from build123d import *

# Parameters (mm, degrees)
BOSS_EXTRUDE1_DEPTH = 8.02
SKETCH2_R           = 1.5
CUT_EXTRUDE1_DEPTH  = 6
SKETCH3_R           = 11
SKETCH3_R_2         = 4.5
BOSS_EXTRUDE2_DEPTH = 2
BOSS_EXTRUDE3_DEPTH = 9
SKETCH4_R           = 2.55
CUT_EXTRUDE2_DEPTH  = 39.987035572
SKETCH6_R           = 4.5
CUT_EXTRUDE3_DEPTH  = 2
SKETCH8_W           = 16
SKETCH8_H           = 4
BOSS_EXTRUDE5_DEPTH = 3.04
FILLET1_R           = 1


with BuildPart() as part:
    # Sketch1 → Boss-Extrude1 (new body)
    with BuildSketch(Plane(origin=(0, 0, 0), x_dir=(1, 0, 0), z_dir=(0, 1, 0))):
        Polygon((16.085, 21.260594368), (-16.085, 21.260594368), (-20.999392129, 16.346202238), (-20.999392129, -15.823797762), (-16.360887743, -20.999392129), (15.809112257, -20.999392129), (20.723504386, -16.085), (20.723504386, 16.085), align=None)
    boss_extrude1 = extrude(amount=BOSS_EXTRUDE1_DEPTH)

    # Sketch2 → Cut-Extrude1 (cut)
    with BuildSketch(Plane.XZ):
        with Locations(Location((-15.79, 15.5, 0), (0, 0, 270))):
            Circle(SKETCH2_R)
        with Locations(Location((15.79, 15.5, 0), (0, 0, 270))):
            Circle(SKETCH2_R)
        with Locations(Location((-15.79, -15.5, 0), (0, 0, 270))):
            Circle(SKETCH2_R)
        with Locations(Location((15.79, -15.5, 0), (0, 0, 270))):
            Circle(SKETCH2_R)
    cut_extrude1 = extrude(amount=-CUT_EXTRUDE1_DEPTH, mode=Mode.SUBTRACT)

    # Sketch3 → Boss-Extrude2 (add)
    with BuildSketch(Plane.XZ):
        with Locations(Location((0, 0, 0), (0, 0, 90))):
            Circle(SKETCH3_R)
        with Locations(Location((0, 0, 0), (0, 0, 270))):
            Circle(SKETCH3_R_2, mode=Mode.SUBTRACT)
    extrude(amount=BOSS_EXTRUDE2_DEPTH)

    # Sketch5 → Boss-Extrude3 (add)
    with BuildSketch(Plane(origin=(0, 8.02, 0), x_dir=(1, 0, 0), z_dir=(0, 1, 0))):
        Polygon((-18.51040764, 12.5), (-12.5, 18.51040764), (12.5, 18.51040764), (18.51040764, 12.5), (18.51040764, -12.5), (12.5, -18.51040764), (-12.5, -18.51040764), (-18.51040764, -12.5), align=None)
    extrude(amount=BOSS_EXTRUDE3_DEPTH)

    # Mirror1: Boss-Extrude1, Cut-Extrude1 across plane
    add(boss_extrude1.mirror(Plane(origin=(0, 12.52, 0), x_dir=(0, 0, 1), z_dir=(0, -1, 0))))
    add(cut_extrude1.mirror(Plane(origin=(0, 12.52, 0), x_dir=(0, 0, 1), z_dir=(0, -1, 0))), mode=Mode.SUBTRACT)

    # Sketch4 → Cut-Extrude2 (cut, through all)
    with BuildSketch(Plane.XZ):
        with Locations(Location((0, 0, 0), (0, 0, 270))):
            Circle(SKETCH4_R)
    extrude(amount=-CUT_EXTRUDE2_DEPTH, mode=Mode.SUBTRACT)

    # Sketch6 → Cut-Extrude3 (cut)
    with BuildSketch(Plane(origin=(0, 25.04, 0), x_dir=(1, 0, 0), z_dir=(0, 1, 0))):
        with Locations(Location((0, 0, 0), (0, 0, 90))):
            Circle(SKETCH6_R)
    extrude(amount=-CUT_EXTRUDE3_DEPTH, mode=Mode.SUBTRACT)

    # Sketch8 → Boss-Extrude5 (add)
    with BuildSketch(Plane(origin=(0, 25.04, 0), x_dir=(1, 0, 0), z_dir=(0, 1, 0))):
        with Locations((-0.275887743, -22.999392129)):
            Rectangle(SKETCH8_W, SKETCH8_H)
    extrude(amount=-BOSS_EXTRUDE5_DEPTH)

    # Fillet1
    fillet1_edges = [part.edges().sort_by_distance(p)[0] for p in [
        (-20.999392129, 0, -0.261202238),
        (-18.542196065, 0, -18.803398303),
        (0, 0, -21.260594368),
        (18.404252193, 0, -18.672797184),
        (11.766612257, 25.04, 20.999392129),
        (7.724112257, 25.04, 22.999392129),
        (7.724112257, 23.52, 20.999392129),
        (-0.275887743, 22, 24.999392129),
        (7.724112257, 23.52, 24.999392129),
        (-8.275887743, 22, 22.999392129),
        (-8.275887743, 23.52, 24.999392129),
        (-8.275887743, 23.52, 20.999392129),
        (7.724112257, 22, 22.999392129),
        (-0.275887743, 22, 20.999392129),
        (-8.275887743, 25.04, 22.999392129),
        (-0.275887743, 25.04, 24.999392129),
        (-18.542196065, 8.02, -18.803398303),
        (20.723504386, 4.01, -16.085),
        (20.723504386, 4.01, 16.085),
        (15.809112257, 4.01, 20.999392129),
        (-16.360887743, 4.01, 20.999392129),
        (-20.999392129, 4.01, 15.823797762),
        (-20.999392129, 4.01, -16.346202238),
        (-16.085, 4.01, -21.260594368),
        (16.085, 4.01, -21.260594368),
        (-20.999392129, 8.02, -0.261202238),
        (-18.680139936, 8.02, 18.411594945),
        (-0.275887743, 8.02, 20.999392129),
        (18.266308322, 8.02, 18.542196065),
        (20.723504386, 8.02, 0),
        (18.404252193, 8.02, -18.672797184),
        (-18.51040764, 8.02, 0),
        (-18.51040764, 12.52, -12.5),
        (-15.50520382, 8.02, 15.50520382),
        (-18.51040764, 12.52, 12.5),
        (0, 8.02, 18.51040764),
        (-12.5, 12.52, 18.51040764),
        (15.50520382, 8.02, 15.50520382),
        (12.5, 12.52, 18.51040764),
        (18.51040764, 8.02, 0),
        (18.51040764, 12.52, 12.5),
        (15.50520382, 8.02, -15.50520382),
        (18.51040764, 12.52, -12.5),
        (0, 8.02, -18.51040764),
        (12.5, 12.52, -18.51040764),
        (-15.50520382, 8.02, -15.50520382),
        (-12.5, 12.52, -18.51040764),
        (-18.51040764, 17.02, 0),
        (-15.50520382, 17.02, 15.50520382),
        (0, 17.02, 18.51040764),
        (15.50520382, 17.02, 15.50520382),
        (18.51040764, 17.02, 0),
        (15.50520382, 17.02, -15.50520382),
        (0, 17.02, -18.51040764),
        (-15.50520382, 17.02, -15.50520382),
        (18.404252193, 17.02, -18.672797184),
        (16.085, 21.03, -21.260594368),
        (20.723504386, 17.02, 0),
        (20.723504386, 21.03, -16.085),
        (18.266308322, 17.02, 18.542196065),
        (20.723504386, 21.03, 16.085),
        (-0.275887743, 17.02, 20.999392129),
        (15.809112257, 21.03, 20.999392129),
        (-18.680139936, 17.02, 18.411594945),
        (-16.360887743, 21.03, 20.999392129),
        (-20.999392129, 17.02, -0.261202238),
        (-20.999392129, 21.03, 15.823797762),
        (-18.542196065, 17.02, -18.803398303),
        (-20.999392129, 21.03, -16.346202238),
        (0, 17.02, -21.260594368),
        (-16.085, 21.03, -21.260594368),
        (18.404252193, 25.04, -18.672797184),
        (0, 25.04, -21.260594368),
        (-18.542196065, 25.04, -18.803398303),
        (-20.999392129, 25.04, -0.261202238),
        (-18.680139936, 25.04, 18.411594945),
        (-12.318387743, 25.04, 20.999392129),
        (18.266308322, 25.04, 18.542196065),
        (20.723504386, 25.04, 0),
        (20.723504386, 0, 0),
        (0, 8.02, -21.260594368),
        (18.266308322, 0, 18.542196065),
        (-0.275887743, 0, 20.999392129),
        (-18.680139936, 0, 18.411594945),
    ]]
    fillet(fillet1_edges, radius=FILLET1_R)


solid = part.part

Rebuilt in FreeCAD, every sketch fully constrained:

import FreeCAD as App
import Part
import Sketcher
Q = App.Units.Quantity


def edges_at(feature, points):
    """Names of the edges that pass closest to the given points."""
    edges = feature.Shape.Edges
    near = lambda p: min(range(len(edges)), key=lambda i: edges[i].distToShape(Part.Vertex(*p))[0])
    return sorted({f"Edge{near(p) + 1}" for p in points})

doc = App.newDocument("Part")
params = doc.addObject("Spreadsheet::Sheet", "Params")
for row, (alias, value) in enumerate([
    ("sketch1_width", "32.17 mm"),
    ("sketch1_length", "6.95 mm"),
    ("pad1_length", "8.02 mm"),
    ("sketch2_diameter", "3 mm"),
    ("pocket1_length", "6 mm"),
    ("sketch3_diameter", "22 mm"),
    ("sketch3_diameter2", "9 mm"),
    ("pad2_length", "2 mm"),
    ("sketch4_width", "25 mm"),
    ("sketch4_length", "8.5 mm"),
    ("pad3_length", "9 mm"),
    ("sketch5_diameter", "5.1 mm"),
    ("sketch6_diameter", "9 mm"),
    ("pocket3_length", "2 mm"),
    ("sketch7_width", "16 mm"),
    ("sketch7_height", "4 mm"),
    ("pad4_length", "3.04 mm"),
    ("fillet_radius", "1 mm"),
], start=1):
    params.set(f"A{row}", alias)
    params.set(f"B{row}", "=" + value)
    params.setAlias(f"B{row}", alias)

body = doc.addObject("PartDesign::Body", "Body")

# Sketch on XZ plane
sketch1 = body.newObject("Sketcher::SketchObject", "Sketch")
sketch1.AttachmentSupport = (doc.getObject("XZ_Plane"), [""])
sketch1.MapMode = "FlatFace"
sketch1.addGeometry(Part.LineSegment(App.Vector(16.085, -21.260594, 0), App.Vector(-16.085, -21.260594, 0)), False)
sketch1.addGeometry(Part.LineSegment(App.Vector(-16.085, -21.260594, 0), App.Vector(-20.999392, -16.346202, 0)), False)
sketch1.addGeometry(Part.LineSegment(App.Vector(-20.999392, -16.346202, 0), App.Vector(-20.999392, 15.823798, 0)), False)
sketch1.addGeometry(Part.LineSegment(App.Vector(-20.999392, 15.823798, 0), App.Vector(-16.360888, 20.999392, 0)), False)
sketch1.addGeometry(Part.LineSegment(App.Vector(-16.360888, 20.999392, 0), App.Vector(15.809112, 20.999392, 0)), False)
sketch1.addGeometry(Part.LineSegment(App.Vector(15.809112, 20.999392, 0), App.Vector(20.723504, 16.085, 0)), False)
sketch1.addGeometry(Part.LineSegment(App.Vector(20.723504, 16.085, 0), App.Vector(20.723504, -16.085, 0)), False)
sketch1.addGeometry(Part.LineSegment(App.Vector(20.723504, -16.085, 0), App.Vector(16.085, -21.260594, 0)), False)
sketch1.addConstraint(Sketcher.Constraint("Coincident", 0, 2, 1, 1))
sketch1.addConstraint(Sketcher.Constraint("Coincident", 1, 2, 2, 1))
sketch1.addConstraint(Sketcher.Constraint("Coincident", 2, 2, 3, 1))
sketch1.addConstraint(Sketcher.Constraint("Coincident", 3, 2, 4, 1))
sketch1.addConstraint(Sketcher.Constraint("Coincident", 4, 2, 5, 1))
sketch1.addConstraint(Sketcher.Constraint("Coincident", 5, 2, 6, 1))
sketch1.addConstraint(Sketcher.Constraint("Coincident", 6, 2, 7, 1))
sketch1.addConstraint(Sketcher.Constraint("Coincident", 7, 2, 0, 1))
sketch1.addConstraint(Sketcher.Constraint("Horizontal", 0))
sketch1.addConstraint(Sketcher.Constraint("Vertical", 2))
sketch1.addConstraint(Sketcher.Constraint("Horizontal", 4))
sketch1.addConstraint(Sketcher.Constraint("Vertical", 6))
sketch1.addConstraint(Sketcher.Constraint("Parallel", 1, 5))
sketch1.addConstraint(Sketcher.Constraint("Parallel", 3, 7))
sketch1.addConstraint(Sketcher.Constraint("Equal", 0, 4))
sketch1.addConstraint(Sketcher.Constraint("Equal", 4, 2))
sketch1.addConstraint(Sketcher.Constraint("Equal", 2, 6))
sketch1.addConstraint(Sketcher.Constraint("Equal", 1, 3))
sketch1.addConstraint(Sketcher.Constraint("Angle", 1, Q("135 deg")))
sketch1.addConstraint(Sketcher.Constraint("DistanceX", 0, 2, 0, 1, Q("32.17 mm")))
sketch1.addConstraint(Sketcher.Constraint("Distance", 1, Q("6.95 mm")))
sketch1.addConstraint(Sketcher.Constraint("DistanceX", 0, 2, -1, 1, Q("16.085 mm")))
sketch1.addConstraint(Sketcher.Constraint("DistanceY", -1, 1, 5, 2, Q("16.085 mm")))
sketch1.addConstraint(Sketcher.Constraint("DistanceY", 0, 2, -1, 1, Q("21.260594 mm")))
sketch1.setExpression("Constraints[19]", "Params.sketch1_width")
sketch1.setExpression("Constraints[20]", "Params.sketch1_length")
pad1 = body.newObject("PartDesign::Pad", "Pad")
pad1.Profile = sketch1
pad1.setExpression("Length", "Params.pad1_length")
pad1.Reversed = True

# Sketch on XZ plane
sketch2 = body.newObject("Sketcher::SketchObject", "Sketch001")
sketch2.AttachmentSupport = (doc.getObject("XZ_Plane"), [""])
sketch2.MapMode = "FlatFace"
sketch2.addGeometry(Part.Circle(App.Vector(-15.79, 15.5, 0), App.Vector(0, 0, 1), 1.5), False)
sketch2.addGeometry(Part.Circle(App.Vector(15.79, 15.5, 0), App.Vector(0, 0, 1), 1.5), False)
sketch2.addGeometry(Part.Circle(App.Vector(-15.79, -15.5, 0), App.Vector(0, 0, 1), 1.5), False)
sketch2.addGeometry(Part.Circle(App.Vector(15.79, -15.5, 0), App.Vector(0, 0, 1), 1.5), False)
sketch2.addConstraint(Sketcher.Constraint("Equal", 0, 1))
sketch2.addConstraint(Sketcher.Constraint("Equal", 1, 2))
sketch2.addConstraint(Sketcher.Constraint("Equal", 2, 3))
sketch2.addConstraint(Sketcher.Constraint("Symmetric", 1, 3, 2, 3, -1, 1))
sketch2.addConstraint(Sketcher.Constraint("Symmetric", 0, 3, 3, 3, -1, 1))
sketch2.addConstraint(Sketcher.Constraint("Symmetric", 0, 3, 1, 3, -2))
sketch2.addConstraint(Sketcher.Constraint("Diameter", 0, Q("3 mm")))
sketch2.addConstraint(Sketcher.Constraint("DistanceY", 2, 3, 0, 3, Q("31 mm")))
sketch2.addConstraint(Sketcher.Constraint("DistanceX", 0, 3, -1, 1, Q("15.79 mm")))
sketch2.setExpression("Constraints[6]", "Params.sketch2_diameter")
pocket1 = body.newObject("PartDesign::Pocket", "Pocket")
pocket1.Profile = sketch2
pocket1.setExpression("Length", "Params.pocket1_length")

# Sketch on XZ plane
sketch3 = body.newObject("Sketcher::SketchObject", "Sketch002")
sketch3.AttachmentSupport = (doc.getObject("XZ_Plane"), [""])
sketch3.MapMode = "FlatFace"
sketch3.addGeometry(Part.Circle(App.Vector(0, 0, 0), App.Vector(0, 0, 1), 11), False)
sketch3.addGeometry(Part.Circle(App.Vector(0, 0, 0), App.Vector(0, 0, 1), 4.5), False)
sketch3.addConstraint(Sketcher.Constraint("Coincident", 0, 3, -1, 1))
sketch3.addConstraint(Sketcher.Constraint("Coincident", 1, 3, -1, 1))
sketch3.addConstraint(Sketcher.Constraint("Diameter", 0, Q("22 mm")))
sketch3.addConstraint(Sketcher.Constraint("Diameter", 1, Q("9 mm")))
sketch3.setExpression("Constraints[2]", "Params.sketch3_diameter")
sketch3.setExpression("Constraints[3]", "Params.sketch3_diameter2")
pad2 = body.newObject("PartDesign::Pad", "Pad001")
pad2.Profile = sketch3
pad2.setExpression("Length", "Params.pad2_length")

# Sketch on XZ plane
sketch4 = body.newObject("Sketcher::SketchObject", "Sketch003")
sketch4.AttachmentSupport = (doc.getObject("XZ_Plane"), [""])
sketch4.MapMode = "FlatFace"
sketch4.AttachmentOffset = App.Placement(App.Vector(0, 0, -8.02), App.Rotation())
sketch4.addGeometry(Part.LineSegment(App.Vector(-12.5, -18.510408, 0), App.Vector(-18.510408, -12.5, 0)), False)
sketch4.addGeometry(Part.LineSegment(App.Vector(-18.510408, -12.5, 0), App.Vector(-18.510408, 12.5, 0)), False)
sketch4.addGeometry(Part.LineSegment(App.Vector(-18.510408, 12.5, 0), App.Vector(-12.5, 18.510408, 0)), False)
sketch4.addGeometry(Part.LineSegment(App.Vector(-12.5, 18.510408, 0), App.Vector(12.5, 18.510408, 0)), False)
sketch4.addGeometry(Part.LineSegment(App.Vector(12.5, 18.510408, 0), App.Vector(18.510408, 12.5, 0)), False)
sketch4.addGeometry(Part.LineSegment(App.Vector(18.510408, 12.5, 0), App.Vector(18.510408, -12.5, 0)), False)
sketch4.addGeometry(Part.LineSegment(App.Vector(18.510408, -12.5, 0), App.Vector(12.5, -18.510408, 0)), False)
sketch4.addGeometry(Part.LineSegment(App.Vector(12.5, -18.510408, 0), App.Vector(-12.5, -18.510408, 0)), False)
sketch4.addConstraint(Sketcher.Constraint("Coincident", 0, 2, 1, 1))
sketch4.addConstraint(Sketcher.Constraint("Coincident", 1, 2, 2, 1))
sketch4.addConstraint(Sketcher.Constraint("Coincident", 2, 2, 3, 1))
sketch4.addConstraint(Sketcher.Constraint("Coincident", 3, 2, 4, 1))
sketch4.addConstraint(Sketcher.Constraint("Coincident", 4, 2, 5, 1))
sketch4.addConstraint(Sketcher.Constraint("Coincident", 5, 2, 6, 1))
sketch4.addConstraint(Sketcher.Constraint("Coincident", 6, 2, 7, 1))
sketch4.addConstraint(Sketcher.Constraint("Coincident", 7, 2, 0, 1))
sketch4.addConstraint(Sketcher.Constraint("Vertical", 1))
sketch4.addConstraint(Sketcher.Constraint("Horizontal", 3))
sketch4.addConstraint(Sketcher.Constraint("Vertical", 5))
sketch4.addConstraint(Sketcher.Constraint("Horizontal", 7))
sketch4.addConstraint(Sketcher.Constraint("Symmetric", 0, 2, 4, 2, -1, 1))
sketch4.addConstraint(Sketcher.Constraint("Symmetric", 2, 2, 6, 2, -1, 1))
sketch4.addConstraint(Sketcher.Constraint("Perpendicular", 0, 2))
sketch4.addConstraint(Sketcher.Constraint("Perpendicular", 2, 4))
sketch4.addConstraint(Sketcher.Constraint("Perpendicular", 4, 6))
sketch4.addConstraint(Sketcher.Constraint("Horizontal", 1, 2, 4, 2))
sketch4.addConstraint(Sketcher.Constraint("Vertical", 3, 2, 6, 2))
sketch4.addConstraint(Sketcher.Constraint("Equal", 7, 1))
sketch4.addConstraint(Sketcher.Constraint("DistanceX", 3, 1, 3, 2, Q("25 mm")))
sketch4.addConstraint(Sketcher.Constraint("Distance", 0, Q("8.5 mm")))
sketch4.setExpression("Constraints[20]", "Params.sketch4_width")
sketch4.setExpression("Constraints[21]", "Params.sketch4_length")
pad3 = body.newObject("PartDesign::Pad", "Pad002")
pad3.Profile = sketch4
pad3.setExpression("Length", "Params.pad3_length")
pad3.Reversed = True
doc.recompute()

datumplane = body.newObject("PartDesign::Plane", "DatumPlane")
datumplane.AttachmentSupport = (doc.getObject("XZ_Plane"), [""])
datumplane.MapMode = "FlatFace"
datumplane.AttachmentOffset = App.Placement(App.Vector(0, 0, -12.52), App.Rotation())
mirrored = body.newObject("PartDesign::Mirrored", "Mirrored")
mirrored.Originals = [pad1, pocket1]
mirrored.MirrorPlane = (datumplane, [""])
body.Tip = mirrored

# Sketch on XZ plane
sketch5 = body.newObject("Sketcher::SketchObject", "Sketch004")
sketch5.AttachmentSupport = (doc.getObject("XZ_Plane"), [""])
sketch5.MapMode = "FlatFace"
sketch5.addGeometry(Part.Circle(App.Vector(0, 0, 0), App.Vector(0, 0, 1), 2.55), False)
sketch5.addConstraint(Sketcher.Constraint("Coincident", 0, 3, -1, 1))
sketch5.addConstraint(Sketcher.Constraint("Diameter", 0, Q("5.1 mm")))
sketch5.setExpression("Constraints[1]", "Params.sketch5_diameter")
pocket2 = body.newObject("PartDesign::Pocket", "Pocket001")
pocket2.Profile = sketch5
pocket2.Type = "ThroughAll"

# Sketch on XZ plane
sketch6 = body.newObject("Sketcher::SketchObject", "Sketch005")
sketch6.AttachmentSupport = (doc.getObject("XZ_Plane"), [""])
sketch6.MapMode = "FlatFace"
sketch6.AttachmentOffset = App.Placement(App.Vector(0, 0, -25.04), App.Rotation())
sketch6.addGeometry(Part.Circle(App.Vector(0, 0, 0), App.Vector(0, 0, 1), 4.5), False)
sketch6.addConstraint(Sketcher.Constraint("Coincident", 0, 3, -1, 1))
sketch6.addConstraint(Sketcher.Constraint("Diameter", 0, Q("9 mm")))
sketch6.setExpression("Constraints[1]", "Params.sketch6_diameter")
pocket3 = body.newObject("PartDesign::Pocket", "Pocket002")
pocket3.Profile = sketch6
pocket3.setExpression("Length", "Params.pocket3_length")
pocket3.Reversed = True

# Sketch on XZ plane
sketch7 = body.newObject("Sketcher::SketchObject", "Sketch006")
sketch7.AttachmentSupport = (doc.getObject("XZ_Plane"), [""])
sketch7.MapMode = "FlatFace"
sketch7.AttachmentOffset = App.Placement(App.Vector(0, 0, -25.04), App.Rotation())
sketch7.addGeometry(Part.LineSegment(App.Vector(-8.275888, 20.999392, 0), App.Vector(-8.275888, 24.999392, 0)), False)
sketch7.addGeometry(Part.LineSegment(App.Vector(-8.275888, 24.999392, 0), App.Vector(7.724112, 24.999392, 0)), False)
sketch7.addGeometry(Part.LineSegment(App.Vector(7.724112, 24.999392, 0), App.Vector(7.724112, 20.999392, 0)), False)
sketch7.addGeometry(Part.LineSegment(App.Vector(7.724112, 20.999392, 0), App.Vector(-8.275888, 20.999392, 0)), False)
sketch7.addConstraint(Sketcher.Constraint("Coincident", 0, 2, 1, 1))
sketch7.addConstraint(Sketcher.Constraint("Coincident", 1, 2, 2, 1))
sketch7.addConstraint(Sketcher.Constraint("Coincident", 2, 2, 3, 1))
sketch7.addConstraint(Sketcher.Constraint("Coincident", 3, 2, 0, 1))
sketch7.addConstraint(Sketcher.Constraint("Vertical", 0))
sketch7.addConstraint(Sketcher.Constraint("Horizontal", 1))
sketch7.addConstraint(Sketcher.Constraint("Vertical", 2))
sketch7.addConstraint(Sketcher.Constraint("Horizontal", 3))
sketch7.addConstraint(Sketcher.Constraint("DistanceX", 1, 1, 1, 2, Q("16 mm")))
sketch7.addConstraint(Sketcher.Constraint("DistanceY", 0, 1, 0, 2, Q("4 mm")))
sketch7.addConstraint(Sketcher.Constraint("DistanceX", 0, 2, -1, 1, Q("8.275888 mm")))
sketch7.addConstraint(Sketcher.Constraint("DistanceY", -1, 1, 0, 2, Q("24.999392 mm")))
sketch7.setExpression("Constraints[8]", "Params.sketch7_width")
sketch7.setExpression("Constraints[9]", "Params.sketch7_height")
pad4 = body.newObject("PartDesign::Pad", "Pad003")
pad4.Profile = sketch7
pad4.setExpression("Length", "Params.pad4_length")
doc.recompute()

fillet = body.newObject("PartDesign::Fillet", "Fillet")
fillet.Base = (pad4, edges_at(pad4, [
    (-20.999, 0, -0.261),
    (-18.542, 0, -18.803),
    (0, 0, -21.261),
    (18.404, 0, -18.673),
    (11.767, 25.04, 20.999),
    (7.724, 25.04, 22.999),
    (7.724, 23.52, 20.999),
    (-0.276, 22, 24.999),
    (7.724, 23.52, 24.999),
    (-8.276, 22, 22.999),
    (-8.276, 23.52, 24.999),
    (-8.276, 23.52, 20.999),
    (7.724, 22, 22.999),
    (-0.276, 22, 20.999),
    (-8.276, 25.04, 22.999),
    (-0.276, 25.04, 24.999),
    (-18.542, 8.02, -18.803),
    (20.724, 4.01, -16.085),
    (20.724, 4.01, 16.085),
    (15.809, 4.01, 20.999),
    (-16.361, 4.01, 20.999),
    (-20.999, 4.01, 15.824),
    (-20.999, 4.01, -16.346),
    (-16.085, 4.01, -21.261),
    (16.085, 4.01, -21.261),
    (-20.999, 8.02, -0.261),
    (-18.68, 8.02, 18.412),
    (-0.276, 8.02, 20.999),
    (18.266, 8.02, 18.542),
    (20.724, 8.02, 0),
    (18.404, 8.02, -18.673),
    (-18.51, 8.02, 0),
    (-18.51, 12.52, -12.5),
    (-15.505, 8.02, 15.505),
    (-18.51, 12.52, 12.5),
    (0, 8.02, 18.51),
    (-12.5, 12.52, 18.51),
    (15.505, 8.02, 15.505),
    (12.5, 12.52, 18.51),
    (18.51, 8.02, 0),
    (18.51, 12.52, 12.5),
    (15.505, 8.02, -15.505),
    (18.51, 12.52, -12.5),
    (0, 8.02, -18.51),
    (12.5, 12.52, -18.51),
    (-15.505, 8.02, -15.505),
    (-12.5, 12.52, -18.51),
    (-18.51, 17.02, 0),
    (-15.505, 17.02, 15.505),
    (0, 17.02, 18.51),
    (15.505, 17.02, 15.505),
    (18.51, 17.02, 0),
    (15.505, 17.02, -15.505),
    (0, 17.02, -18.51),
    (-15.505, 17.02, -15.505),
    (18.404, 17.02, -18.673),
    (16.085, 21.03, -21.261),
    (20.724, 17.02, 0),
    (20.724, 21.03, -16.085),
    (18.266, 17.02, 18.542),
    (20.724, 21.03, 16.085),
    (-0.276, 17.02, 20.999),
    (15.809, 21.03, 20.999),
    (-18.68, 17.02, 18.412),
    (-16.361, 21.03, 20.999),
    (-20.999, 17.02, -0.261),
    (-20.999, 21.03, 15.824),
    (-18.542, 17.02, -18.803),
    (-20.999, 21.03, -16.346),
    (0, 17.02, -21.261),
    (-16.085, 21.03, -21.261),
    (18.404, 25.04, -18.673),
    (0, 25.04, -21.261),
    (-18.542, 25.04, -18.803),
    (-20.999, 25.04, -0.261),
    (-18.68, 25.04, 18.412),
    (-12.318, 25.04, 20.999),
    (18.266, 25.04, 18.542),
    (20.724, 25.04, 0),
    (20.724, 0, 0),
    (0, 8.02, -21.261),
    (18.266, 0, 18.542),
    (-0.276, 0, 20.999),
    (-18.68, 0, 18.412),
]))
fillet.setExpression("Radius", "Params.fillet_radius")

doc.recompute()
